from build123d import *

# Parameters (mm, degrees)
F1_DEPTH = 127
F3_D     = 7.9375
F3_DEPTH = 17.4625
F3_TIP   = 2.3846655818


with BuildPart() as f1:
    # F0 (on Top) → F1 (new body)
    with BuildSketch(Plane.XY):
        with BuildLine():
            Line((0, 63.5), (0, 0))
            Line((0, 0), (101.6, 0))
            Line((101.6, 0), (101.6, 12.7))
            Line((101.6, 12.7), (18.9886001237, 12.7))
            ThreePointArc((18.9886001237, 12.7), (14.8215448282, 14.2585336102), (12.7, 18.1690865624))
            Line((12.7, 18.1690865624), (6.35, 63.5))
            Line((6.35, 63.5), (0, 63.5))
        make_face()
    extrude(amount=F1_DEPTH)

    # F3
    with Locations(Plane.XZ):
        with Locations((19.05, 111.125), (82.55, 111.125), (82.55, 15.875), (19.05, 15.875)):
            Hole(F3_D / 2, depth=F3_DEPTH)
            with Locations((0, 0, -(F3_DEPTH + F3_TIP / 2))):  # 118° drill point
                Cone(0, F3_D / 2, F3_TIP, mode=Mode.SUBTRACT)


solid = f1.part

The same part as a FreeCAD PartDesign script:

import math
import FreeCAD as App
import Part
import Sketcher

V = App.Vector
Q = App.Units.Quantity

doc = App.newDocument("Part")
body = doc.addObject("PartDesign::Body", "Body")

# Sketch on XY plane
sketch1 = body.newObject("Sketcher::SketchObject", "Sketch")
sketch1.AttachmentSupport = (doc.getObject("XY_Plane"), [""])
sketch1.MapMode = "FlatFace"
sketch1.addGeometry(Part.LineSegment(V(0, 64, 0), V(0, 0, 0)), False)
sketch1.addGeometry(Part.LineSegment(V(0, 0, 0), V(102, 0, 0)), False)
sketch1.addGeometry(Part.LineSegment(V(102, 0, 0), V(102, 13, 0)), False)
sketch1.addGeometry(Part.LineSegment(V(102, 13, 0), V(19, 13, 0)), False)
sketch1.addGeometry(Part.ArcOfCircle(Part.Circle(V(19, 19, 0), V(0, 0, 1), 6), math.radians(-172), math.radians(-90)), False)
sketch1.addGeometry(Part.LineSegment(V(13, 18, 0), V(6, 64, 0)), False)
sketch1.addGeometry(Part.LineSegment(V(6, 64, 0), V(0, 64, 0)), False)
sketch1.addConstraint(Sketcher.Constraint("Coincident", 0, 2, 1, 1))
sketch1.addConstraint(Sketcher.Constraint("Coincident", 1, 2, 2, 1))
sketch1.addConstraint(Sketcher.Constraint("Coincident", 2, 2, 3, 1))
sketch1.addConstraint(Sketcher.Constraint("Tangent", 3, 2, 4, 2))
sketch1.addConstraint(Sketcher.Constraint("Tangent", 4, 1, 5, 1))
sketch1.addConstraint(Sketcher.Constraint("Coincident", 5, 2, 6, 1))
sketch1.addConstraint(Sketcher.Constraint("Coincident", 6, 2, 0, 1))
sketch1.addConstraint(Sketcher.Constraint("Vertical", 0))
sketch1.addConstraint(Sketcher.Constraint("Horizontal", 1))
sketch1.addConstraint(Sketcher.Constraint("Vertical", 2))
sketch1.addConstraint(Sketcher.Constraint("Horizontal", 3))
sketch1.addConstraint(Sketcher.Constraint("Horizontal", 6))
sketch1.addConstraint(Sketcher.Constraint("Coincident", 0, 2, -1, 1))
sketch1.addConstraint(Sketcher.Constraint("DistanceX", 1, 1, 1, 2, Q("4 in")))
sketch1.addConstraint(Sketcher.Constraint("Radius", 4, Q("0.25 in")))
sketch1.addConstraint(Sketcher.Constraint("DistanceY", 0, 2, 0, 1, Q("2.5 in")))
sketch1.addConstraint(Sketcher.Constraint("DistanceY", 2, 1, 2, 2, Q("0.5 in")))
sketch1.addConstraint(Sketcher.Constraint("DistanceX", 6, 2, 6, 1, Q("0.25 in")))
sketch1.addConstraint(Sketcher.Constraint("DistanceX", -1, 1, 4, 1, Q("0.5 in")))
pad1 = body.newObject("PartDesign::Pad", "Pad")
pad1.Profile = sketch1
pad1.Length = Q("5 in")

# Sketch on XZ plane
sketch2 = body.newObject("Sketcher::SketchObject", "Sketch001")
sketch2.AttachmentSupport = (doc.getObject("XZ_Plane"), [""])
sketch2.MapMode = "FlatFace"
sketch2.addGeometry(Part.Circle(V(19.1, 111.1, 0), V(0, 0, 1), 4), False)
sketch2.addGeometry(Part.Circle(V(82.5, 111.1, 0), V(0, 0, 1), 4), False)
sketch2.addGeometry(Part.Circle(V(82.5, 15.9, 0), V(0, 0, 1), 4), False)
sketch2.addGeometry(Part.Circle(V(19.1, 15.9, 0), V(0, 0, 1), 4), False)
sketch2.addConstraint(Sketcher.Constraint("Equal", 0, 1))
sketch2.addConstraint(Sketcher.Constraint("Equal", 1, 2))
sketch2.addConstraint(Sketcher.Constraint("Equal", 2, 3))
sketch2.addConstraint(Sketcher.Constraint("Horizontal", 0, 3, 1, 3))
sketch2.addConstraint(Sketcher.Constraint("Horizontal", 2, 3, 3, 3))
sketch2.addConstraint(Sketcher.Constraint("Vertical", 1, 3, 2, 3))
sketch2.addConstraint(Sketcher.Constraint("Vertical", 0, 3, 3, 3))
sketch2.addConstraint(Sketcher.Constraint("Diameter", 0, Q("0.3125 in")))
sketch2.addConstraint(Sketcher.Constraint("DistanceX", 0, 3, 1, 3, Q("2.5 in")))
sketch2.addConstraint(Sketcher.Constraint("DistanceX", -1, 1, 0, 3, Q("0.75 in")))
sketch2.addConstraint(Sketcher.Constraint("DistanceY", 2, 3, 1, 3, Q("3.75 in")))
sketch2.addConstraint(Sketcher.Constraint("DistanceY", -1, 1, 0, 3, Q("4.375 in")))
doc.recompute()
hole = body.newObject("PartDesign::Hole", "Hole")
hole.Profile = sketch2
hole.ThreadType = "None"
hole.Diameter = Q("0.3125 in")
hole.DepthType = "Dimension"
hole.Depth = Q("0.6875 in")
hole.DrillPoint = "Angled"
hole.DrillPointAngle = 118

doc.recompute()
